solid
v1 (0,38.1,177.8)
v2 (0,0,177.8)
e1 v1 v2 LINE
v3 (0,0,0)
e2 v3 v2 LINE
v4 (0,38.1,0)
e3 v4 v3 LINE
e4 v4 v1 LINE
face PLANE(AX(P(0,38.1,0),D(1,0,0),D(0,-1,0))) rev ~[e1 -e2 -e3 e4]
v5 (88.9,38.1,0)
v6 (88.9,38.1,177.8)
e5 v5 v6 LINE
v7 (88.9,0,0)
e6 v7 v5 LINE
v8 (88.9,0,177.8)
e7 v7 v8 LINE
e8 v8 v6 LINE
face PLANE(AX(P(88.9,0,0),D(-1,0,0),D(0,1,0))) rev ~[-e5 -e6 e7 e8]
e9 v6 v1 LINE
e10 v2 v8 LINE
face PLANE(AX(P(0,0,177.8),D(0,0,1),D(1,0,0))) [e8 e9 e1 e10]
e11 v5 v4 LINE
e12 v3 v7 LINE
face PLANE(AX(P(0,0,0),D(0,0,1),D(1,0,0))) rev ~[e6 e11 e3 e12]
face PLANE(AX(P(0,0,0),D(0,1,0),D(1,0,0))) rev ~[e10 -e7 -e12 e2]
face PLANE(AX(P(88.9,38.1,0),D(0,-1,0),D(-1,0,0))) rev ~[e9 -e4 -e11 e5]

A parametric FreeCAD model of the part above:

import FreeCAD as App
import Part
import Sketcher

V = App.Vector
Q = App.Units.Quantity


def add_polygon(sketch, points):
    """Adds a closed chain of lines whose ends are joined by coincident constraints."""
    first, n = sketch.GeometryCount, len(points)
    for a, b in zip(points, points[1:] + points[:1]):
        sketch.addGeometry(Part.LineSegment(App.Vector(*a, 0), App.Vector(*b, 0)), False)
    for i in range(n):
        sketch.addConstraint(Sketcher.Constraint("Coincident", first + i, 2, first + (i + 1) % n, 1))

doc = App.newDocument("Part")
body = doc.addObject("PartDesign::Body", "Body")

# Sketch on XY plane
sketch1 = body.newObject("Sketcher::SketchObject", "Sketch")
sketch1.AttachmentSupport = (doc.getObject("XY_Plane"), [""])
sketch1.MapMode = "FlatFace"
add_polygon(sketch1, [(0, 38.1), (0, 0), (88.9, 0), (88.9, 38.1)])  # lines 0-3
sketch1.addConstraint(Sketcher.Constraint("Vertical", 0))
sketch1.addConstraint(Sketcher.Constraint("Horizontal", 1))
sketch1.addConstraint(Sketcher.Constraint("Vertical", 2))
sketch1.addConstraint(Sketcher.Constraint("Horizontal", 3))
sketch1.addConstraint(Sketcher.Constraint("Coincident", 0, 2, -1, 1))
sketch1.addConstraint(Sketcher.Constraint("DistanceX", 1, 1, 1, 2, Q("3.5 in")))
sketch1.addConstraint(Sketcher.Constraint("DistanceY", 0, 2, 0, 1, Q("1.5 in")))
pad1 = body.newObject("PartDesign::Pad", "Pad")
pad1.Profile = sketch1
pad1.Length = Q("7 in")

doc.recompute()
